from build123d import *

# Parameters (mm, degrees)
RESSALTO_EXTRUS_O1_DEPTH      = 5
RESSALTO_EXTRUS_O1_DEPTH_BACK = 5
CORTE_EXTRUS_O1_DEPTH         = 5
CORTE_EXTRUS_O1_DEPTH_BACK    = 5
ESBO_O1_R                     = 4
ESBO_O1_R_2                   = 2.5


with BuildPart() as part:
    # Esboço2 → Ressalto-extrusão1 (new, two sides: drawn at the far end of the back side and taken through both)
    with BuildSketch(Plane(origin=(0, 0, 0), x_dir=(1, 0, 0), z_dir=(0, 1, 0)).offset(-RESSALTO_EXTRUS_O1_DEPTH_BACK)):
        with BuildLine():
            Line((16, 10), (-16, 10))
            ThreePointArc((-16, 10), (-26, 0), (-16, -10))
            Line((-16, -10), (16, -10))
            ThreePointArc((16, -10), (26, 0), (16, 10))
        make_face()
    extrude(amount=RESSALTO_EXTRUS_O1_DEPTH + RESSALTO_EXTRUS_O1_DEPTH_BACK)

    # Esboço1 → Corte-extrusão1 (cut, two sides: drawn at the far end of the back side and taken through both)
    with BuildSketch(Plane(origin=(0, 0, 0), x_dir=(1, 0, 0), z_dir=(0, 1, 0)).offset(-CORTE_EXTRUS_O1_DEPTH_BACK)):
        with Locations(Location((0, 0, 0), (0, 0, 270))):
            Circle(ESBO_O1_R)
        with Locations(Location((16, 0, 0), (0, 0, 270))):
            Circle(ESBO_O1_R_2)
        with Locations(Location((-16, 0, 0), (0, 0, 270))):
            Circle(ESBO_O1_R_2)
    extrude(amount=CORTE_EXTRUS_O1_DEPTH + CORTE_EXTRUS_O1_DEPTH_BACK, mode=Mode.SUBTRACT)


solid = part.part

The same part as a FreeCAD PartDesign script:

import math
import FreeCAD as App
import Part
import Sketcher

doc = App.newDocument("Part")
body = doc.addObject("PartDesign::Body", "Body")

sketch1 = doc.addObject("Sketcher::SketchObject", "Sketch")
body.addObject(sketch1)
sketch1.AttachmentSupport = (doc.XZ_Plane, [""])
sketch1.MapMode = "FlatFace"
sketch1.addGeometry([
    Part.LineSegment(App.Vector(16, -10, 0), App.Vector(-16, -10, 0)),
    Part.ArcOfCircle(Part.Circle(App.Vector(-16, 0, 0), App.Vector(0, 0, 1), 10), math.radians(90), math.radians(270)),
    Part.LineSegment(App.Vector(-16, 10, 0), App.Vector(16, 10, 0)),
    Part.ArcOfCircle(Part.Circle(App.Vector(16, 0, 0), App.Vector(0, 0, 1), 10), math.radians(-90), math.radians(90)),
], False)
sketch1.addConstraint([
    Sketcher.Constraint("Tangent", 0, 2, 1, 2),
    Sketcher.Constraint("Tangent", 1, 1, 2, 1),
    Sketcher.Constraint("Tangent", 2, 2, 3, 2),
    Sketcher.Constraint("Tangent", 3, 1, 0, 1),
    Sketcher.Constraint("Horizontal", 0),
    Sketcher.Constraint("Horizontal", 2),
    Sketcher.Constraint("Symmetric", 1, 3, 3, 3, -1, 1),
    Sketcher.Constraint("Radius", 1, 10.0),
    Sketcher.Constraint("DistanceX", 0, 2, 0, 1, 32.0),
])
pad1 = doc.addObject("PartDesign::Pad", "Pad")
body.addObject(pad1)
pad1.Profile = sketch1
pad1.Type = "TwoLengths"
pad1.Length = 5
pad1.Length2 = 5
pad1.Reversed = True

sketch2 = doc.addObject("Sketcher::SketchObject", "Sketch001")
body.addObject(sketch2)
sketch2.AttachmentSupport = (doc.XZ_Plane, [""])
sketch2.MapMode = "FlatFace"
sketch2.addGeometry([
    Part.Circle(App.Vector(0, 0, 0), App.Vector(0, 0, 1), 4),
    Part.Circle(App.Vector(16, 0, 0), App.Vector(0, 0, 1), 2.5),
    Part.Circle(App.Vector(-16, 0, 0), App.Vector(0, 0, 1), 2.5),
], False)
sketch2.addConstraint([
    Sketcher.Constraint("Coincident", 0, 3, -1, 1),
    Sketcher.Constraint("Equal", 1, 2),
    Sketcher.Constraint("Symmetric", 1, 3, 2, 3, -1, 1),
    Sketcher.Constraint("PointOnObject", 1, 3, -1),
    Sketcher.Constraint("Diameter", 0, 8.0),
    Sketcher.Constraint("Diameter", 1, 5.0),
    Sketcher.Constraint("DistanceX", -1, 1, 1, 3, 16.0),
])
pocket1 = doc.addObject("PartDesign::Pocket", "Pocket")
body.addObject(pocket1)
pocket1.Profile = sketch2
pocket1.Type = "ThroughAll"
pocket1.Midplane = True

doc.recompute()
